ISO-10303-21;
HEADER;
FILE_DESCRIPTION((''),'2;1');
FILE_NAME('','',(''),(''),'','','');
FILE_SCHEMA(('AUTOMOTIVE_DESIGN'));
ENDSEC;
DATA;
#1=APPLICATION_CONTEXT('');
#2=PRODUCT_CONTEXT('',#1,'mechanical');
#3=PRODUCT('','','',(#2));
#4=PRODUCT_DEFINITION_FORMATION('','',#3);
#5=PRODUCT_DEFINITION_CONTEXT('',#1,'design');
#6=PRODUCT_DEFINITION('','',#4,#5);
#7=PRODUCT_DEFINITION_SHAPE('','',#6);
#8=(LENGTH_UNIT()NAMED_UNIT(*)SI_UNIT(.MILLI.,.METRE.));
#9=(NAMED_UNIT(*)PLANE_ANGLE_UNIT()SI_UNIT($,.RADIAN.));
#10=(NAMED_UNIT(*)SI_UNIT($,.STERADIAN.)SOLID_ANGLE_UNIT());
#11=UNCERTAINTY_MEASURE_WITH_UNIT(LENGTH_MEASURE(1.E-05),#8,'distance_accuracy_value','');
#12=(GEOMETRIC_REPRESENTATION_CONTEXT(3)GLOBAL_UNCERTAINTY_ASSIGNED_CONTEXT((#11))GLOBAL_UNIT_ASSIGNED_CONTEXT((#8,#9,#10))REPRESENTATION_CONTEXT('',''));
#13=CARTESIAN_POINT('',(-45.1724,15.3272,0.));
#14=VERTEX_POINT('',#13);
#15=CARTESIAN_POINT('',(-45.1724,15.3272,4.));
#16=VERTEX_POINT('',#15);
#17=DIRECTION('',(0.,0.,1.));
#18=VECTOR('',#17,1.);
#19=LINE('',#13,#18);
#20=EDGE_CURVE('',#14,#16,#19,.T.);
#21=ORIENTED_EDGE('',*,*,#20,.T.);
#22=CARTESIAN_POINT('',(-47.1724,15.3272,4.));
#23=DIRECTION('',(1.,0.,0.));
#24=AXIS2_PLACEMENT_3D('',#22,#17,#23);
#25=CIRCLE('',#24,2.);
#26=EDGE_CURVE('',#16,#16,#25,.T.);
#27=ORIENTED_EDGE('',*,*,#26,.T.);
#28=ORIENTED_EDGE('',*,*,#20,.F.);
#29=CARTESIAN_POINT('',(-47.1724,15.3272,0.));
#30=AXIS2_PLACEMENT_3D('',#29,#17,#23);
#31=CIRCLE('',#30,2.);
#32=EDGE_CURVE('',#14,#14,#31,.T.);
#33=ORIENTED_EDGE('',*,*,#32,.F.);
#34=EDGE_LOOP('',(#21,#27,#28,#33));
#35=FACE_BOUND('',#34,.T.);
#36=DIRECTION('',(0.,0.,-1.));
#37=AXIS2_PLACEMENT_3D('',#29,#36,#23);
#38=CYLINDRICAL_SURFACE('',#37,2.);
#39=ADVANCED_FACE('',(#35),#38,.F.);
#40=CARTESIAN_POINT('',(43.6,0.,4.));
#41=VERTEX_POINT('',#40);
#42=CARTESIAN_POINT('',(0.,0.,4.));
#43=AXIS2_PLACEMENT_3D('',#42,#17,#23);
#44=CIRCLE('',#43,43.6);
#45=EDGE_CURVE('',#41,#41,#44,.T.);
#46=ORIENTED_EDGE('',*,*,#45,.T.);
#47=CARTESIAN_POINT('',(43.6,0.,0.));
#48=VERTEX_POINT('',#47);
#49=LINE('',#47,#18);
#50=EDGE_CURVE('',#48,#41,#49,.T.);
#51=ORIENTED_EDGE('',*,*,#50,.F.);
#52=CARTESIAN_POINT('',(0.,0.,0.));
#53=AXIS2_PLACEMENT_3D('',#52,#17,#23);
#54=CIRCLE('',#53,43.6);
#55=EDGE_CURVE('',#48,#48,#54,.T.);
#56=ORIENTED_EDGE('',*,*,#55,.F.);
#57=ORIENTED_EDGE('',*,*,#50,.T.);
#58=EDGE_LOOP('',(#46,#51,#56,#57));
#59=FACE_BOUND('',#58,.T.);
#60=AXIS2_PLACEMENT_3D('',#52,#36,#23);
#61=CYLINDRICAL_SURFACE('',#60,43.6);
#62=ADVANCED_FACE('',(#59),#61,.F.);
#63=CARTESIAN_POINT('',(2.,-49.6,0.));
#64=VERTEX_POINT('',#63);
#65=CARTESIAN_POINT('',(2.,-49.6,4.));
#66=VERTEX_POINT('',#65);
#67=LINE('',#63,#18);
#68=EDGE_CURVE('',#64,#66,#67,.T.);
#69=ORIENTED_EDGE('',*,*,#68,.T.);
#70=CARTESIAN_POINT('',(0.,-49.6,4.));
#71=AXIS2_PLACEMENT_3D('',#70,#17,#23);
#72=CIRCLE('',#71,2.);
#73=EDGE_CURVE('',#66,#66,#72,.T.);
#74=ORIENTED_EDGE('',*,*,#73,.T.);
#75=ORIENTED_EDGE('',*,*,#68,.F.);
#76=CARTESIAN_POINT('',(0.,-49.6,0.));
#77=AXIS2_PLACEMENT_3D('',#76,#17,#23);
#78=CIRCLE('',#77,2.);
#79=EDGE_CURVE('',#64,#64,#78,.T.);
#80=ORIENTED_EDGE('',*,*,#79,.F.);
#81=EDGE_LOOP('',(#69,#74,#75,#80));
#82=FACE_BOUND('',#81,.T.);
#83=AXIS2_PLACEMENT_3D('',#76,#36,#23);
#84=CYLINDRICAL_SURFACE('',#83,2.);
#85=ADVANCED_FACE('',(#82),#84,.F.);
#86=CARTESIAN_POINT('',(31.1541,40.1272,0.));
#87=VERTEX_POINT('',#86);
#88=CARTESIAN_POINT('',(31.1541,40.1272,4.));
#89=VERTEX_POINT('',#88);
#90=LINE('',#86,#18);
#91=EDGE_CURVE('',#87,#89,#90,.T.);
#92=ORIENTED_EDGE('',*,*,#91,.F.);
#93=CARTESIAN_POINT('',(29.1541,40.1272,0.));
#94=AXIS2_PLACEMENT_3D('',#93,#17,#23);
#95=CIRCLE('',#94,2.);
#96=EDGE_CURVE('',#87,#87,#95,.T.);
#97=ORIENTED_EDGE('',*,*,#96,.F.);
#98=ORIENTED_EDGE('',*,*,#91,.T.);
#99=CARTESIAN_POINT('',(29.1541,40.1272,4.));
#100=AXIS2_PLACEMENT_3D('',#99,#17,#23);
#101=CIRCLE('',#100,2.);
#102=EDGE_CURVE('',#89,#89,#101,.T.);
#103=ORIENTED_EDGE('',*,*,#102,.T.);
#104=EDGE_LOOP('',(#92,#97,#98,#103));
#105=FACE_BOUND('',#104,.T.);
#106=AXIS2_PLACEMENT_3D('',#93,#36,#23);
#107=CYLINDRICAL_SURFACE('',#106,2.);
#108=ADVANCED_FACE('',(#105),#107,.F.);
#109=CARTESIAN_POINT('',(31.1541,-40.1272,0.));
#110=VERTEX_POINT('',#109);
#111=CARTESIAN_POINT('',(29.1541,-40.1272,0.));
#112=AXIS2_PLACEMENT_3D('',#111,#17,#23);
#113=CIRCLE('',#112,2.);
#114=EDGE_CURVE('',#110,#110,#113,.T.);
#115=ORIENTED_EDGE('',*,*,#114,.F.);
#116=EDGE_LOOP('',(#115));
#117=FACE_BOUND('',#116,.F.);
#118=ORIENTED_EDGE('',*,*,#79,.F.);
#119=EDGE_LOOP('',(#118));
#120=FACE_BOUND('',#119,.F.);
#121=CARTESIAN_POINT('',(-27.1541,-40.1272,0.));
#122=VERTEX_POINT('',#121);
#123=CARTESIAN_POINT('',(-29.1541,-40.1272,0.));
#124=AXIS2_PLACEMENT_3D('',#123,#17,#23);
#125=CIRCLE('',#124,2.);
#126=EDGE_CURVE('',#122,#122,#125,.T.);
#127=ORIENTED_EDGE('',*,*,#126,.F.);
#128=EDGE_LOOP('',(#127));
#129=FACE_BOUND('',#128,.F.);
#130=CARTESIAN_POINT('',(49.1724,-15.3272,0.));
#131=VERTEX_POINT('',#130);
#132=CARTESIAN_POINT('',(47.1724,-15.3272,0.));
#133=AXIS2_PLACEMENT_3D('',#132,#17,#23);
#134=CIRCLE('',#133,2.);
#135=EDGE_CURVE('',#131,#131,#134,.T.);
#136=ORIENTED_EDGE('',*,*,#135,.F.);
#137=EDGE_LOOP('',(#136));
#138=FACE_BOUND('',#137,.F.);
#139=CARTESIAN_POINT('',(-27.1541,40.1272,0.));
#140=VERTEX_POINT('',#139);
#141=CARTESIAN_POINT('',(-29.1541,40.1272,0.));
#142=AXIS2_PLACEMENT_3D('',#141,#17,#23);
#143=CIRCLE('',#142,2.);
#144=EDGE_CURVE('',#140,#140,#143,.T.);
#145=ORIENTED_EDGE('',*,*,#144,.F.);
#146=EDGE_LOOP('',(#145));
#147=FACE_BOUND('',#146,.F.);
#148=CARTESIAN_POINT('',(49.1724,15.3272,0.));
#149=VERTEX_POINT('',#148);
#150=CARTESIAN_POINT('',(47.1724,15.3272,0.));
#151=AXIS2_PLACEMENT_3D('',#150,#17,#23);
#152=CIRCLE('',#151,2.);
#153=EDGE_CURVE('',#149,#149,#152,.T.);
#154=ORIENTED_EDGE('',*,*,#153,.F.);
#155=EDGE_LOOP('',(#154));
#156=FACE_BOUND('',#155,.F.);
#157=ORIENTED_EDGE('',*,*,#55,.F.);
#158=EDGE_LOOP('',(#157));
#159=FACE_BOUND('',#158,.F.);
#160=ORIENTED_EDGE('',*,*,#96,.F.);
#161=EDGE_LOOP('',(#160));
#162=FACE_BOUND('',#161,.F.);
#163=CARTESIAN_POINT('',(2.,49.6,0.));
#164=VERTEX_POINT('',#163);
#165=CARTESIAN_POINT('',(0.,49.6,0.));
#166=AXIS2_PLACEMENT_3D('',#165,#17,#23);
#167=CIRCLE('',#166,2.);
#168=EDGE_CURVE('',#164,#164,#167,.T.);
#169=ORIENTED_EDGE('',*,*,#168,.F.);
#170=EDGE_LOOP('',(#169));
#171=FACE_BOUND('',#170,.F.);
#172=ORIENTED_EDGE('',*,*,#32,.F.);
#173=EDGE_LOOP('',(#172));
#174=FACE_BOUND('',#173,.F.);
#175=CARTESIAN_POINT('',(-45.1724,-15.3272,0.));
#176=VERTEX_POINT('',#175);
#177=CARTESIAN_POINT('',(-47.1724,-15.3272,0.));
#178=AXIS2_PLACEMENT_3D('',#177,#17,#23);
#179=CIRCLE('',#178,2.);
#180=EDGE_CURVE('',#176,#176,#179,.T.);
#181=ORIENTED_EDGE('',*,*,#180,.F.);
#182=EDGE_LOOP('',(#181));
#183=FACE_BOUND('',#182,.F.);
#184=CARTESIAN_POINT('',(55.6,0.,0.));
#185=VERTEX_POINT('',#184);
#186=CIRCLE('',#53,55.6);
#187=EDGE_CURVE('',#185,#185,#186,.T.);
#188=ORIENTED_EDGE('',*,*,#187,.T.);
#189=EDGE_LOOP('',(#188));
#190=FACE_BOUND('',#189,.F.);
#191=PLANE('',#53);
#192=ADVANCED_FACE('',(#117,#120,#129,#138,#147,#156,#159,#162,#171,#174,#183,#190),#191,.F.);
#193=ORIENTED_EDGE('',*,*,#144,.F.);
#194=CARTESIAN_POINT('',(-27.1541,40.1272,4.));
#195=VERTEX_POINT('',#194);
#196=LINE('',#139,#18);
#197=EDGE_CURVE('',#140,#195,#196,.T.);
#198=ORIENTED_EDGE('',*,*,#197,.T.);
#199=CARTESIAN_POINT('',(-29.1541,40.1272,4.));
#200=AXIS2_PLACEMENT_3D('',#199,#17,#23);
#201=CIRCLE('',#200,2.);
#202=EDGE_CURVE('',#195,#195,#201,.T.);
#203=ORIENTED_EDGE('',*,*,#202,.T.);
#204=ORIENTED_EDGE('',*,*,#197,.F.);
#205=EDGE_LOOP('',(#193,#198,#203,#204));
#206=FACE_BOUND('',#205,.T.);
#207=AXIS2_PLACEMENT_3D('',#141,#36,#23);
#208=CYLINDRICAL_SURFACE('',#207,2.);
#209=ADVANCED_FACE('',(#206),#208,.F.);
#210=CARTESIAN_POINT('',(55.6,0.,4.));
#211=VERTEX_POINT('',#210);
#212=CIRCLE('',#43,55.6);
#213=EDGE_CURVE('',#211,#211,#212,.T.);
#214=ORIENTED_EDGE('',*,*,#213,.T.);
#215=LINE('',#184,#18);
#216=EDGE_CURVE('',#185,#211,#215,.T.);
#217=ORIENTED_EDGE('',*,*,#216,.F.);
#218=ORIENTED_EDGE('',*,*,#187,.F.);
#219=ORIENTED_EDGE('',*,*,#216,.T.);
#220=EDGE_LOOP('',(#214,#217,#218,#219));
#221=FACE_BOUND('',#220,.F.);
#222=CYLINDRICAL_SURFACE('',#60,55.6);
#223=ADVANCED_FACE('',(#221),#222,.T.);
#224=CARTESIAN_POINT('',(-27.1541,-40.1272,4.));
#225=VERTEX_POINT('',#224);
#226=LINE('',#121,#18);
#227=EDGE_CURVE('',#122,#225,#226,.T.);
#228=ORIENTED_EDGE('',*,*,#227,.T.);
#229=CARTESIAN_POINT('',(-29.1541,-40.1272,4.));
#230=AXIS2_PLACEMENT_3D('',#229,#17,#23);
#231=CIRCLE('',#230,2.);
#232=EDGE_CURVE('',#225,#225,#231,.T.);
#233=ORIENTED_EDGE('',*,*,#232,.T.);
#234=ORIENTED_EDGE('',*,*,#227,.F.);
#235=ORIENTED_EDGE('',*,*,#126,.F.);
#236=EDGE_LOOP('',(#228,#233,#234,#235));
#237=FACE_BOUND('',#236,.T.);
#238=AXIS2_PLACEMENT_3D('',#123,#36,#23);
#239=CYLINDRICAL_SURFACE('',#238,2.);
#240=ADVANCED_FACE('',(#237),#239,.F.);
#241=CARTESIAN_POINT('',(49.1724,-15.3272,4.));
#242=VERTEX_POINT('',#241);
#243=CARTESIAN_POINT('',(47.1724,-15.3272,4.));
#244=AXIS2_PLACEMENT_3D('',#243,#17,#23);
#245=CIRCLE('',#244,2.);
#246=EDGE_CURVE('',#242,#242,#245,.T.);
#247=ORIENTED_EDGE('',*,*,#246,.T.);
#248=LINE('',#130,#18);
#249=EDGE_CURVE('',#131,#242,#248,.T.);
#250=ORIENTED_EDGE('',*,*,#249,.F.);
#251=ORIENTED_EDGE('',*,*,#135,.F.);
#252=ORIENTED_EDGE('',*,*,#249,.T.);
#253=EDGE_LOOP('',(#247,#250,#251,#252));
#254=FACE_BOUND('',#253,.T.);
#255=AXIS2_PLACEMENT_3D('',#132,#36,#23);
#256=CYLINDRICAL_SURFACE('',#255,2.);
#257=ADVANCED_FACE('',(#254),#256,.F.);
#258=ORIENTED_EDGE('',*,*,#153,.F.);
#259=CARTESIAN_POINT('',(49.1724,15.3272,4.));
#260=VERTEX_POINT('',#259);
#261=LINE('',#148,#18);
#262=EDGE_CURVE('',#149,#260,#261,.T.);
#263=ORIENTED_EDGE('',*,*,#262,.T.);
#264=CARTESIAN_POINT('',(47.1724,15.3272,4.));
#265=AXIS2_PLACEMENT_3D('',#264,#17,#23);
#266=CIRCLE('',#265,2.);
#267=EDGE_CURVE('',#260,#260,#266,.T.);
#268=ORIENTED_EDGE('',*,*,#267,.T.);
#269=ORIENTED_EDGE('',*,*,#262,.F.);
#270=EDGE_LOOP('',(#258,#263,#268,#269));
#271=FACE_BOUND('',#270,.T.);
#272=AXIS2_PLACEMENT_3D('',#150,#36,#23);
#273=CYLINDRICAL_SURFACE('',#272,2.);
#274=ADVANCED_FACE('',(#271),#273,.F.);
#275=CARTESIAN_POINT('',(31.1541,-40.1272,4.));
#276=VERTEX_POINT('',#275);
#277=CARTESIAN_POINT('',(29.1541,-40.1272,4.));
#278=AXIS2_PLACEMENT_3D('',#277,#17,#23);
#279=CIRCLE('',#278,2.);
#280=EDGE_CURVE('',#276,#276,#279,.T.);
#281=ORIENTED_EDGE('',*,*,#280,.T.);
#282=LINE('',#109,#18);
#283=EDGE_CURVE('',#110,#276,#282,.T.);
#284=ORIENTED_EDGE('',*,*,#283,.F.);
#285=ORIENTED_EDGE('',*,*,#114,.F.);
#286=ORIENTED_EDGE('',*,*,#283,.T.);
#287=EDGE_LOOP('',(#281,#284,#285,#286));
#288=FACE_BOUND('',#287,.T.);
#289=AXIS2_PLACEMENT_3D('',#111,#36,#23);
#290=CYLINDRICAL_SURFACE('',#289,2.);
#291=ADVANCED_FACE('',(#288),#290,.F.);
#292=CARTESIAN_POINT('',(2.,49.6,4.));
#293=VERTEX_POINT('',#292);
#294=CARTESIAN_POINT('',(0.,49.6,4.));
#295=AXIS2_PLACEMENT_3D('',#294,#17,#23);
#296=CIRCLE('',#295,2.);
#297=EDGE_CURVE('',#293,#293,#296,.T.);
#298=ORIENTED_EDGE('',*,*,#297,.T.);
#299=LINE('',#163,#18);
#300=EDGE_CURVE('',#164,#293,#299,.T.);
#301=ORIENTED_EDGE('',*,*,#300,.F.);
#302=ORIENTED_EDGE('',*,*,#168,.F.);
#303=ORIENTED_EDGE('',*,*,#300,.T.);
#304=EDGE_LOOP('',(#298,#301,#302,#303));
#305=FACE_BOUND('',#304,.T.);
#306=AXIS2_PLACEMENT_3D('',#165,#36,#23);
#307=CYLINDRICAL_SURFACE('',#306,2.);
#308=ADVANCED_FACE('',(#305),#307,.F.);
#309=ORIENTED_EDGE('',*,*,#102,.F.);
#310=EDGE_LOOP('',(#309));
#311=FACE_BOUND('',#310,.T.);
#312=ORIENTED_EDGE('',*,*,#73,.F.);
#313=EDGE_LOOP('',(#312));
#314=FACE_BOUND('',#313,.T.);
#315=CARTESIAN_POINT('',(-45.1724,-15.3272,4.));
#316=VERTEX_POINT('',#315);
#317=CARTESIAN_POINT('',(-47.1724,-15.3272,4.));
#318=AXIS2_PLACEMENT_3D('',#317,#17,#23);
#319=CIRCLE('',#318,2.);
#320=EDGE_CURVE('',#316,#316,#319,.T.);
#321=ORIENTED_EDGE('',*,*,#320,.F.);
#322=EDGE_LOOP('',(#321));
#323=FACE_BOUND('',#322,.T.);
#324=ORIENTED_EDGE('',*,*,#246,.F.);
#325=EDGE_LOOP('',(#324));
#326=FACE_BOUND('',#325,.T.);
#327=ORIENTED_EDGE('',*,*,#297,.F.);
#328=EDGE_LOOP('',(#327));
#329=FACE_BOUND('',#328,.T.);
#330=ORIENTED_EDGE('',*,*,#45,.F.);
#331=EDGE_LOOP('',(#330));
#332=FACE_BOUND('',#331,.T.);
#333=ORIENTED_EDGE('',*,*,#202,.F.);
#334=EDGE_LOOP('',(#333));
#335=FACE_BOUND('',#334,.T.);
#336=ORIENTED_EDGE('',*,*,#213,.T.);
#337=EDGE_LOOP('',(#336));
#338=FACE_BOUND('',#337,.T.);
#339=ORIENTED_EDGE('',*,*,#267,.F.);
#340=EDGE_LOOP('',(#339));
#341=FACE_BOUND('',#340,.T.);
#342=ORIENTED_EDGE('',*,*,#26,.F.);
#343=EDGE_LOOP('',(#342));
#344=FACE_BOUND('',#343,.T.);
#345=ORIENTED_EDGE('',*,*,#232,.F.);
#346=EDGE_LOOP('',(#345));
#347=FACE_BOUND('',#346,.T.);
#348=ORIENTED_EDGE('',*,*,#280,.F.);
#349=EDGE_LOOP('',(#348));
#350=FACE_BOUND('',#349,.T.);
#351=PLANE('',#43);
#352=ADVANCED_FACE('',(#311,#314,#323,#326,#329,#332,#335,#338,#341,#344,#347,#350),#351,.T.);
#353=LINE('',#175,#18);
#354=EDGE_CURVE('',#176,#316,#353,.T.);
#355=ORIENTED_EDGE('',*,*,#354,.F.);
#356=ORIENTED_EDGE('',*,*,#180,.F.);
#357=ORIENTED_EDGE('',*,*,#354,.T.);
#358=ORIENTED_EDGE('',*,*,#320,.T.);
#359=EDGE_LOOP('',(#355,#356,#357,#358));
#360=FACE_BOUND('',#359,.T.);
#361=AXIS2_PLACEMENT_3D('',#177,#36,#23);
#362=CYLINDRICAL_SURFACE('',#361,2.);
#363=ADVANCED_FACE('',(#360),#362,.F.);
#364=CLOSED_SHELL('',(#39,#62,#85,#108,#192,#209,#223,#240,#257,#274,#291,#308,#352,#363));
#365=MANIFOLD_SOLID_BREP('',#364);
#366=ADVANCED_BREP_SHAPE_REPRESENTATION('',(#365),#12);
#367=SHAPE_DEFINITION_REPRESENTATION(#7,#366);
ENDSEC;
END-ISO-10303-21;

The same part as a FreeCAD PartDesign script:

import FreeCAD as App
import Part
import Sketcher

V = App.Vector

doc = App.newDocument("Part")
body = doc.addObject("PartDesign::Body", "Body")

sketch1 = body.newObject("Sketcher::SketchObject", "Sketch")
sketch1.AttachmentSupport = (doc.getObject("XY_Plane"), [""])
sketch1.MapMode = "FlatFace"
sketch1.addGeometry([
    Part.Circle(V(0, 0, 0), V(0, 0, 1), 55.6),
    Part.Circle(V(-29.2, -40.1, 0), V(0, 0, 1), 2),
    Part.Circle(V(-47.2, -15.3, 0), V(0, 0, 1), 2),
    Part.Circle(V(0, -49.6, 0), V(0, 0, 1), 2),
    Part.Circle(V(29.2, -40.1, 0), V(0, 0, 1), 2),
    Part.Circle(V(47.2, -15.3, 0), V(0, 0, 1), 2),
    Part.Circle(V(-47.2, 15.3, 0), V(0, 0, 1), 2),
    Part.Circle(V(-29.2, 40.1, 0), V(0, 0, 1), 2),
    Part.Circle(V(0, 0, 0), V(0, 0, 1), 43.6),
    Part.Circle(V(47.2, 15.3, 0), V(0, 0, 1), 2),
    Part.Circle(V(0, 49.6, 0), V(0, 0, 1), 2),
    Part.Circle(V(29.2, 40.1, 0), V(0, 0, 1), 2),
], False)
sketch1.addConstraint([
    Sketcher.Constraint("Coincident", 0, 3, -1, 1),
    Sketcher.Constraint("Coincident", 8, 3, -1, 1),
    Sketcher.Constraint("Equal", 1, 2),
    Sketcher.Constraint("Equal", 2, 3),
    Sketcher.Constraint("Equal", 3, 4),
    Sketcher.Constraint("Equal", 4, 5),
    Sketcher.Constraint("Equal", 5, 6),
    Sketcher.Constraint("Equal", 6, 7),
    Sketcher.Constraint("Equal", 7, 9),
    Sketcher.Constraint("Equal", 9, 10),
    Sketcher.Constraint("Equal", 10, 11),
    Sketcher.Constraint("Symmetric", 5, 3, 6, 3, -1, 1),
    Sketcher.Constraint("Symmetric", 4, 3, 7, 3, -1, 1),
    Sketcher.Constraint("Symmetric", 2, 3, 9, 3, -1, 1),
    Sketcher.Constraint("Symmetric", 3, 3, 10, 3, -1, 1),
    Sketcher.Constraint("Symmetric", 1, 3, 11, 3, -1, 1),
    Sketcher.Constraint("Symmetric", 1, 3, 4, 3, -2),
    Sketcher.Constraint("Symmetric", 2, 3, 5, 3, -2),
    Sketcher.Constraint("PointOnObject", 3, 3, -2),
    Sketcher.Constraint("Diameter", 1, 4.0),
    Sketcher.Constraint("Diameter", 0, 111.2),
    Sketcher.Constraint("Diameter", 8, 87.2),
    Sketcher.Constraint("DistanceY", 3, 3, -1, 1, 49.6),
    Sketcher.Constraint("DistanceY", 1, 3, 2, 3, 24.8),
    Sketcher.Constraint("DistanceX", 1, 3, -1, 1, 29.154),
    Sketcher.Constraint("DistanceY", 1, 3, -1, 1, 40.1272),
    Sketcher.Constraint("DistanceX", 2, 3, -1, 1, 47.1724),
])
pad1 = body.newObject("PartDesign::Pad", "Pad")
pad1.Profile = sketch1
pad1.Length = 4

doc.recompute()
